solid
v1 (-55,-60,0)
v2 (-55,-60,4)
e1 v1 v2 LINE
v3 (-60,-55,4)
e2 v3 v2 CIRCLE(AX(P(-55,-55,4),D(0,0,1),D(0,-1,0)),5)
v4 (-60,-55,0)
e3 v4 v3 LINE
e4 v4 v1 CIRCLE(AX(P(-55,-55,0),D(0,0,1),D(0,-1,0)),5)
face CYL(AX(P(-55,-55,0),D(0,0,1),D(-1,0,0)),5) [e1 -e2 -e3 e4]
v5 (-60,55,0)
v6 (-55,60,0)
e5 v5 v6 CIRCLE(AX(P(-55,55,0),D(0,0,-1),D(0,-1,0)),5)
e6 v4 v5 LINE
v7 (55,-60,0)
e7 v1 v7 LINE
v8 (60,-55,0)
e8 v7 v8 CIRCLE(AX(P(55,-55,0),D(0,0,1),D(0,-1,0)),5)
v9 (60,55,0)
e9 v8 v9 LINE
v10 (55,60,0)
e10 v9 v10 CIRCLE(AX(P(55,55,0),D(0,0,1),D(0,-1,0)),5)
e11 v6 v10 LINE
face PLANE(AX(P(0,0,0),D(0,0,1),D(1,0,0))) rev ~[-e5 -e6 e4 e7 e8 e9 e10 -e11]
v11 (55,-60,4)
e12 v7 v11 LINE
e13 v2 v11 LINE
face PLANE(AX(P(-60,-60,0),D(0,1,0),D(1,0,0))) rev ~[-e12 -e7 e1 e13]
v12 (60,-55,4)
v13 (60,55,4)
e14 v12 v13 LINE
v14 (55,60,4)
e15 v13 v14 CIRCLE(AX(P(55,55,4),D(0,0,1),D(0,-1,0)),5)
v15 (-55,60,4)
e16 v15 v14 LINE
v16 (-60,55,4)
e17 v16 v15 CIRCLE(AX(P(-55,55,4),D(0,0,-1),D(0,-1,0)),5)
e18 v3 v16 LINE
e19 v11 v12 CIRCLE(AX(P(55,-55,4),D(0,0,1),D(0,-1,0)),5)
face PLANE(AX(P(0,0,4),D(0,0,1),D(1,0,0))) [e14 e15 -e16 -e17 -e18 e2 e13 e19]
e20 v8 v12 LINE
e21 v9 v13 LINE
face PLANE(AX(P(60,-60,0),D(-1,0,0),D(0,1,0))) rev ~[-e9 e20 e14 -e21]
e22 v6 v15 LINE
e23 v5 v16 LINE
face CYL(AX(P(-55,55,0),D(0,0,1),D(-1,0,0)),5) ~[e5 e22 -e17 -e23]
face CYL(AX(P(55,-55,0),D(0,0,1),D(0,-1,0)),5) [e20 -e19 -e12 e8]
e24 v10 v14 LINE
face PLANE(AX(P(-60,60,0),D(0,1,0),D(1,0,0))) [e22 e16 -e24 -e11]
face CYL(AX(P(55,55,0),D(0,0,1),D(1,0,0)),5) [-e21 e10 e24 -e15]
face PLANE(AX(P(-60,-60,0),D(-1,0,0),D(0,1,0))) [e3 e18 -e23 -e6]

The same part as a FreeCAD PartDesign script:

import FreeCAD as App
import Part
import Sketcher
Q = App.Units.Quantity


def edges_at(feature, points):
    """Names of the edges that pass closest to the given points."""
    edges = feature.Shape.Edges
    near = lambda p: min(range(len(edges)), key=lambda i: edges[i].distToShape(Part.Vertex(*p))[0])
    return sorted({f"Edge{near(p) + 1}" for p in points})

doc = App.newDocument("Part")
body = doc.addObject("PartDesign::Body", "Body")

# Sketch on XY plane
sketch1 = body.newObject("Sketcher::SketchObject", "Sketch")
sketch1.AttachmentSupport = (doc.getObject("XY_Plane"), [""])
sketch1.MapMode = "FlatFace"
sketch1.addGeometry(Part.LineSegment(App.Vector(-60, 60, 0), App.Vector(-60, -60, 0)), False)
sketch1.addGeometry(Part.LineSegment(App.Vector(-60, -60, 0), App.Vector(60, -60, 0)), False)
sketch1.addGeometry(Part.LineSegment(App.Vector(60, -60, 0), App.Vector(60, 60, 0)), False)
sketch1.addGeometry(Part.LineSegment(App.Vector(60, 60, 0), App.Vector(-60, 60, 0)), False)
sketch1.addConstraint(Sketcher.Constraint("Coincident", 0, 2, 1, 1))
sketch1.addConstraint(Sketcher.Constraint("Coincident", 1, 2, 2, 1))
sketch1.addConstraint(Sketcher.Constraint("Coincident", 2, 2, 3, 1))
sketch1.addConstraint(Sketcher.Constraint("Coincident", 3, 2, 0, 1))
sketch1.addConstraint(Sketcher.Constraint("Vertical", 0))
sketch1.addConstraint(Sketcher.Constraint("Horizontal", 1))
sketch1.addConstraint(Sketcher.Constraint("Vertical", 2))
sketch1.addConstraint(Sketcher.Constraint("Horizontal", 3))
sketch1.addConstraint(Sketcher.Constraint("Symmetric", 0, 2, 2, 2, -1, 1))
sketch1.addConstraint(Sketcher.Constraint("Equal", 3, 0))
sketch1.addConstraint(Sketcher.Constraint("DistanceX", 1, 1, 1, 2, Q("120 mm")))
pad1 = body.newObject("PartDesign::Pad", "Pad")
pad1.Profile = sketch1
pad1.Length = 4
doc.recompute()

fillet = body.newObject("PartDesign::Fillet", "Fillet")
fillet.Base = (pad1, edges_at(pad1, [
    (60, -60, 2),
    (-60, -60, 2),
    (60, 60, 2),
    (-60, 60, 2),
]))
fillet.Radius = 5

doc.recompute()
